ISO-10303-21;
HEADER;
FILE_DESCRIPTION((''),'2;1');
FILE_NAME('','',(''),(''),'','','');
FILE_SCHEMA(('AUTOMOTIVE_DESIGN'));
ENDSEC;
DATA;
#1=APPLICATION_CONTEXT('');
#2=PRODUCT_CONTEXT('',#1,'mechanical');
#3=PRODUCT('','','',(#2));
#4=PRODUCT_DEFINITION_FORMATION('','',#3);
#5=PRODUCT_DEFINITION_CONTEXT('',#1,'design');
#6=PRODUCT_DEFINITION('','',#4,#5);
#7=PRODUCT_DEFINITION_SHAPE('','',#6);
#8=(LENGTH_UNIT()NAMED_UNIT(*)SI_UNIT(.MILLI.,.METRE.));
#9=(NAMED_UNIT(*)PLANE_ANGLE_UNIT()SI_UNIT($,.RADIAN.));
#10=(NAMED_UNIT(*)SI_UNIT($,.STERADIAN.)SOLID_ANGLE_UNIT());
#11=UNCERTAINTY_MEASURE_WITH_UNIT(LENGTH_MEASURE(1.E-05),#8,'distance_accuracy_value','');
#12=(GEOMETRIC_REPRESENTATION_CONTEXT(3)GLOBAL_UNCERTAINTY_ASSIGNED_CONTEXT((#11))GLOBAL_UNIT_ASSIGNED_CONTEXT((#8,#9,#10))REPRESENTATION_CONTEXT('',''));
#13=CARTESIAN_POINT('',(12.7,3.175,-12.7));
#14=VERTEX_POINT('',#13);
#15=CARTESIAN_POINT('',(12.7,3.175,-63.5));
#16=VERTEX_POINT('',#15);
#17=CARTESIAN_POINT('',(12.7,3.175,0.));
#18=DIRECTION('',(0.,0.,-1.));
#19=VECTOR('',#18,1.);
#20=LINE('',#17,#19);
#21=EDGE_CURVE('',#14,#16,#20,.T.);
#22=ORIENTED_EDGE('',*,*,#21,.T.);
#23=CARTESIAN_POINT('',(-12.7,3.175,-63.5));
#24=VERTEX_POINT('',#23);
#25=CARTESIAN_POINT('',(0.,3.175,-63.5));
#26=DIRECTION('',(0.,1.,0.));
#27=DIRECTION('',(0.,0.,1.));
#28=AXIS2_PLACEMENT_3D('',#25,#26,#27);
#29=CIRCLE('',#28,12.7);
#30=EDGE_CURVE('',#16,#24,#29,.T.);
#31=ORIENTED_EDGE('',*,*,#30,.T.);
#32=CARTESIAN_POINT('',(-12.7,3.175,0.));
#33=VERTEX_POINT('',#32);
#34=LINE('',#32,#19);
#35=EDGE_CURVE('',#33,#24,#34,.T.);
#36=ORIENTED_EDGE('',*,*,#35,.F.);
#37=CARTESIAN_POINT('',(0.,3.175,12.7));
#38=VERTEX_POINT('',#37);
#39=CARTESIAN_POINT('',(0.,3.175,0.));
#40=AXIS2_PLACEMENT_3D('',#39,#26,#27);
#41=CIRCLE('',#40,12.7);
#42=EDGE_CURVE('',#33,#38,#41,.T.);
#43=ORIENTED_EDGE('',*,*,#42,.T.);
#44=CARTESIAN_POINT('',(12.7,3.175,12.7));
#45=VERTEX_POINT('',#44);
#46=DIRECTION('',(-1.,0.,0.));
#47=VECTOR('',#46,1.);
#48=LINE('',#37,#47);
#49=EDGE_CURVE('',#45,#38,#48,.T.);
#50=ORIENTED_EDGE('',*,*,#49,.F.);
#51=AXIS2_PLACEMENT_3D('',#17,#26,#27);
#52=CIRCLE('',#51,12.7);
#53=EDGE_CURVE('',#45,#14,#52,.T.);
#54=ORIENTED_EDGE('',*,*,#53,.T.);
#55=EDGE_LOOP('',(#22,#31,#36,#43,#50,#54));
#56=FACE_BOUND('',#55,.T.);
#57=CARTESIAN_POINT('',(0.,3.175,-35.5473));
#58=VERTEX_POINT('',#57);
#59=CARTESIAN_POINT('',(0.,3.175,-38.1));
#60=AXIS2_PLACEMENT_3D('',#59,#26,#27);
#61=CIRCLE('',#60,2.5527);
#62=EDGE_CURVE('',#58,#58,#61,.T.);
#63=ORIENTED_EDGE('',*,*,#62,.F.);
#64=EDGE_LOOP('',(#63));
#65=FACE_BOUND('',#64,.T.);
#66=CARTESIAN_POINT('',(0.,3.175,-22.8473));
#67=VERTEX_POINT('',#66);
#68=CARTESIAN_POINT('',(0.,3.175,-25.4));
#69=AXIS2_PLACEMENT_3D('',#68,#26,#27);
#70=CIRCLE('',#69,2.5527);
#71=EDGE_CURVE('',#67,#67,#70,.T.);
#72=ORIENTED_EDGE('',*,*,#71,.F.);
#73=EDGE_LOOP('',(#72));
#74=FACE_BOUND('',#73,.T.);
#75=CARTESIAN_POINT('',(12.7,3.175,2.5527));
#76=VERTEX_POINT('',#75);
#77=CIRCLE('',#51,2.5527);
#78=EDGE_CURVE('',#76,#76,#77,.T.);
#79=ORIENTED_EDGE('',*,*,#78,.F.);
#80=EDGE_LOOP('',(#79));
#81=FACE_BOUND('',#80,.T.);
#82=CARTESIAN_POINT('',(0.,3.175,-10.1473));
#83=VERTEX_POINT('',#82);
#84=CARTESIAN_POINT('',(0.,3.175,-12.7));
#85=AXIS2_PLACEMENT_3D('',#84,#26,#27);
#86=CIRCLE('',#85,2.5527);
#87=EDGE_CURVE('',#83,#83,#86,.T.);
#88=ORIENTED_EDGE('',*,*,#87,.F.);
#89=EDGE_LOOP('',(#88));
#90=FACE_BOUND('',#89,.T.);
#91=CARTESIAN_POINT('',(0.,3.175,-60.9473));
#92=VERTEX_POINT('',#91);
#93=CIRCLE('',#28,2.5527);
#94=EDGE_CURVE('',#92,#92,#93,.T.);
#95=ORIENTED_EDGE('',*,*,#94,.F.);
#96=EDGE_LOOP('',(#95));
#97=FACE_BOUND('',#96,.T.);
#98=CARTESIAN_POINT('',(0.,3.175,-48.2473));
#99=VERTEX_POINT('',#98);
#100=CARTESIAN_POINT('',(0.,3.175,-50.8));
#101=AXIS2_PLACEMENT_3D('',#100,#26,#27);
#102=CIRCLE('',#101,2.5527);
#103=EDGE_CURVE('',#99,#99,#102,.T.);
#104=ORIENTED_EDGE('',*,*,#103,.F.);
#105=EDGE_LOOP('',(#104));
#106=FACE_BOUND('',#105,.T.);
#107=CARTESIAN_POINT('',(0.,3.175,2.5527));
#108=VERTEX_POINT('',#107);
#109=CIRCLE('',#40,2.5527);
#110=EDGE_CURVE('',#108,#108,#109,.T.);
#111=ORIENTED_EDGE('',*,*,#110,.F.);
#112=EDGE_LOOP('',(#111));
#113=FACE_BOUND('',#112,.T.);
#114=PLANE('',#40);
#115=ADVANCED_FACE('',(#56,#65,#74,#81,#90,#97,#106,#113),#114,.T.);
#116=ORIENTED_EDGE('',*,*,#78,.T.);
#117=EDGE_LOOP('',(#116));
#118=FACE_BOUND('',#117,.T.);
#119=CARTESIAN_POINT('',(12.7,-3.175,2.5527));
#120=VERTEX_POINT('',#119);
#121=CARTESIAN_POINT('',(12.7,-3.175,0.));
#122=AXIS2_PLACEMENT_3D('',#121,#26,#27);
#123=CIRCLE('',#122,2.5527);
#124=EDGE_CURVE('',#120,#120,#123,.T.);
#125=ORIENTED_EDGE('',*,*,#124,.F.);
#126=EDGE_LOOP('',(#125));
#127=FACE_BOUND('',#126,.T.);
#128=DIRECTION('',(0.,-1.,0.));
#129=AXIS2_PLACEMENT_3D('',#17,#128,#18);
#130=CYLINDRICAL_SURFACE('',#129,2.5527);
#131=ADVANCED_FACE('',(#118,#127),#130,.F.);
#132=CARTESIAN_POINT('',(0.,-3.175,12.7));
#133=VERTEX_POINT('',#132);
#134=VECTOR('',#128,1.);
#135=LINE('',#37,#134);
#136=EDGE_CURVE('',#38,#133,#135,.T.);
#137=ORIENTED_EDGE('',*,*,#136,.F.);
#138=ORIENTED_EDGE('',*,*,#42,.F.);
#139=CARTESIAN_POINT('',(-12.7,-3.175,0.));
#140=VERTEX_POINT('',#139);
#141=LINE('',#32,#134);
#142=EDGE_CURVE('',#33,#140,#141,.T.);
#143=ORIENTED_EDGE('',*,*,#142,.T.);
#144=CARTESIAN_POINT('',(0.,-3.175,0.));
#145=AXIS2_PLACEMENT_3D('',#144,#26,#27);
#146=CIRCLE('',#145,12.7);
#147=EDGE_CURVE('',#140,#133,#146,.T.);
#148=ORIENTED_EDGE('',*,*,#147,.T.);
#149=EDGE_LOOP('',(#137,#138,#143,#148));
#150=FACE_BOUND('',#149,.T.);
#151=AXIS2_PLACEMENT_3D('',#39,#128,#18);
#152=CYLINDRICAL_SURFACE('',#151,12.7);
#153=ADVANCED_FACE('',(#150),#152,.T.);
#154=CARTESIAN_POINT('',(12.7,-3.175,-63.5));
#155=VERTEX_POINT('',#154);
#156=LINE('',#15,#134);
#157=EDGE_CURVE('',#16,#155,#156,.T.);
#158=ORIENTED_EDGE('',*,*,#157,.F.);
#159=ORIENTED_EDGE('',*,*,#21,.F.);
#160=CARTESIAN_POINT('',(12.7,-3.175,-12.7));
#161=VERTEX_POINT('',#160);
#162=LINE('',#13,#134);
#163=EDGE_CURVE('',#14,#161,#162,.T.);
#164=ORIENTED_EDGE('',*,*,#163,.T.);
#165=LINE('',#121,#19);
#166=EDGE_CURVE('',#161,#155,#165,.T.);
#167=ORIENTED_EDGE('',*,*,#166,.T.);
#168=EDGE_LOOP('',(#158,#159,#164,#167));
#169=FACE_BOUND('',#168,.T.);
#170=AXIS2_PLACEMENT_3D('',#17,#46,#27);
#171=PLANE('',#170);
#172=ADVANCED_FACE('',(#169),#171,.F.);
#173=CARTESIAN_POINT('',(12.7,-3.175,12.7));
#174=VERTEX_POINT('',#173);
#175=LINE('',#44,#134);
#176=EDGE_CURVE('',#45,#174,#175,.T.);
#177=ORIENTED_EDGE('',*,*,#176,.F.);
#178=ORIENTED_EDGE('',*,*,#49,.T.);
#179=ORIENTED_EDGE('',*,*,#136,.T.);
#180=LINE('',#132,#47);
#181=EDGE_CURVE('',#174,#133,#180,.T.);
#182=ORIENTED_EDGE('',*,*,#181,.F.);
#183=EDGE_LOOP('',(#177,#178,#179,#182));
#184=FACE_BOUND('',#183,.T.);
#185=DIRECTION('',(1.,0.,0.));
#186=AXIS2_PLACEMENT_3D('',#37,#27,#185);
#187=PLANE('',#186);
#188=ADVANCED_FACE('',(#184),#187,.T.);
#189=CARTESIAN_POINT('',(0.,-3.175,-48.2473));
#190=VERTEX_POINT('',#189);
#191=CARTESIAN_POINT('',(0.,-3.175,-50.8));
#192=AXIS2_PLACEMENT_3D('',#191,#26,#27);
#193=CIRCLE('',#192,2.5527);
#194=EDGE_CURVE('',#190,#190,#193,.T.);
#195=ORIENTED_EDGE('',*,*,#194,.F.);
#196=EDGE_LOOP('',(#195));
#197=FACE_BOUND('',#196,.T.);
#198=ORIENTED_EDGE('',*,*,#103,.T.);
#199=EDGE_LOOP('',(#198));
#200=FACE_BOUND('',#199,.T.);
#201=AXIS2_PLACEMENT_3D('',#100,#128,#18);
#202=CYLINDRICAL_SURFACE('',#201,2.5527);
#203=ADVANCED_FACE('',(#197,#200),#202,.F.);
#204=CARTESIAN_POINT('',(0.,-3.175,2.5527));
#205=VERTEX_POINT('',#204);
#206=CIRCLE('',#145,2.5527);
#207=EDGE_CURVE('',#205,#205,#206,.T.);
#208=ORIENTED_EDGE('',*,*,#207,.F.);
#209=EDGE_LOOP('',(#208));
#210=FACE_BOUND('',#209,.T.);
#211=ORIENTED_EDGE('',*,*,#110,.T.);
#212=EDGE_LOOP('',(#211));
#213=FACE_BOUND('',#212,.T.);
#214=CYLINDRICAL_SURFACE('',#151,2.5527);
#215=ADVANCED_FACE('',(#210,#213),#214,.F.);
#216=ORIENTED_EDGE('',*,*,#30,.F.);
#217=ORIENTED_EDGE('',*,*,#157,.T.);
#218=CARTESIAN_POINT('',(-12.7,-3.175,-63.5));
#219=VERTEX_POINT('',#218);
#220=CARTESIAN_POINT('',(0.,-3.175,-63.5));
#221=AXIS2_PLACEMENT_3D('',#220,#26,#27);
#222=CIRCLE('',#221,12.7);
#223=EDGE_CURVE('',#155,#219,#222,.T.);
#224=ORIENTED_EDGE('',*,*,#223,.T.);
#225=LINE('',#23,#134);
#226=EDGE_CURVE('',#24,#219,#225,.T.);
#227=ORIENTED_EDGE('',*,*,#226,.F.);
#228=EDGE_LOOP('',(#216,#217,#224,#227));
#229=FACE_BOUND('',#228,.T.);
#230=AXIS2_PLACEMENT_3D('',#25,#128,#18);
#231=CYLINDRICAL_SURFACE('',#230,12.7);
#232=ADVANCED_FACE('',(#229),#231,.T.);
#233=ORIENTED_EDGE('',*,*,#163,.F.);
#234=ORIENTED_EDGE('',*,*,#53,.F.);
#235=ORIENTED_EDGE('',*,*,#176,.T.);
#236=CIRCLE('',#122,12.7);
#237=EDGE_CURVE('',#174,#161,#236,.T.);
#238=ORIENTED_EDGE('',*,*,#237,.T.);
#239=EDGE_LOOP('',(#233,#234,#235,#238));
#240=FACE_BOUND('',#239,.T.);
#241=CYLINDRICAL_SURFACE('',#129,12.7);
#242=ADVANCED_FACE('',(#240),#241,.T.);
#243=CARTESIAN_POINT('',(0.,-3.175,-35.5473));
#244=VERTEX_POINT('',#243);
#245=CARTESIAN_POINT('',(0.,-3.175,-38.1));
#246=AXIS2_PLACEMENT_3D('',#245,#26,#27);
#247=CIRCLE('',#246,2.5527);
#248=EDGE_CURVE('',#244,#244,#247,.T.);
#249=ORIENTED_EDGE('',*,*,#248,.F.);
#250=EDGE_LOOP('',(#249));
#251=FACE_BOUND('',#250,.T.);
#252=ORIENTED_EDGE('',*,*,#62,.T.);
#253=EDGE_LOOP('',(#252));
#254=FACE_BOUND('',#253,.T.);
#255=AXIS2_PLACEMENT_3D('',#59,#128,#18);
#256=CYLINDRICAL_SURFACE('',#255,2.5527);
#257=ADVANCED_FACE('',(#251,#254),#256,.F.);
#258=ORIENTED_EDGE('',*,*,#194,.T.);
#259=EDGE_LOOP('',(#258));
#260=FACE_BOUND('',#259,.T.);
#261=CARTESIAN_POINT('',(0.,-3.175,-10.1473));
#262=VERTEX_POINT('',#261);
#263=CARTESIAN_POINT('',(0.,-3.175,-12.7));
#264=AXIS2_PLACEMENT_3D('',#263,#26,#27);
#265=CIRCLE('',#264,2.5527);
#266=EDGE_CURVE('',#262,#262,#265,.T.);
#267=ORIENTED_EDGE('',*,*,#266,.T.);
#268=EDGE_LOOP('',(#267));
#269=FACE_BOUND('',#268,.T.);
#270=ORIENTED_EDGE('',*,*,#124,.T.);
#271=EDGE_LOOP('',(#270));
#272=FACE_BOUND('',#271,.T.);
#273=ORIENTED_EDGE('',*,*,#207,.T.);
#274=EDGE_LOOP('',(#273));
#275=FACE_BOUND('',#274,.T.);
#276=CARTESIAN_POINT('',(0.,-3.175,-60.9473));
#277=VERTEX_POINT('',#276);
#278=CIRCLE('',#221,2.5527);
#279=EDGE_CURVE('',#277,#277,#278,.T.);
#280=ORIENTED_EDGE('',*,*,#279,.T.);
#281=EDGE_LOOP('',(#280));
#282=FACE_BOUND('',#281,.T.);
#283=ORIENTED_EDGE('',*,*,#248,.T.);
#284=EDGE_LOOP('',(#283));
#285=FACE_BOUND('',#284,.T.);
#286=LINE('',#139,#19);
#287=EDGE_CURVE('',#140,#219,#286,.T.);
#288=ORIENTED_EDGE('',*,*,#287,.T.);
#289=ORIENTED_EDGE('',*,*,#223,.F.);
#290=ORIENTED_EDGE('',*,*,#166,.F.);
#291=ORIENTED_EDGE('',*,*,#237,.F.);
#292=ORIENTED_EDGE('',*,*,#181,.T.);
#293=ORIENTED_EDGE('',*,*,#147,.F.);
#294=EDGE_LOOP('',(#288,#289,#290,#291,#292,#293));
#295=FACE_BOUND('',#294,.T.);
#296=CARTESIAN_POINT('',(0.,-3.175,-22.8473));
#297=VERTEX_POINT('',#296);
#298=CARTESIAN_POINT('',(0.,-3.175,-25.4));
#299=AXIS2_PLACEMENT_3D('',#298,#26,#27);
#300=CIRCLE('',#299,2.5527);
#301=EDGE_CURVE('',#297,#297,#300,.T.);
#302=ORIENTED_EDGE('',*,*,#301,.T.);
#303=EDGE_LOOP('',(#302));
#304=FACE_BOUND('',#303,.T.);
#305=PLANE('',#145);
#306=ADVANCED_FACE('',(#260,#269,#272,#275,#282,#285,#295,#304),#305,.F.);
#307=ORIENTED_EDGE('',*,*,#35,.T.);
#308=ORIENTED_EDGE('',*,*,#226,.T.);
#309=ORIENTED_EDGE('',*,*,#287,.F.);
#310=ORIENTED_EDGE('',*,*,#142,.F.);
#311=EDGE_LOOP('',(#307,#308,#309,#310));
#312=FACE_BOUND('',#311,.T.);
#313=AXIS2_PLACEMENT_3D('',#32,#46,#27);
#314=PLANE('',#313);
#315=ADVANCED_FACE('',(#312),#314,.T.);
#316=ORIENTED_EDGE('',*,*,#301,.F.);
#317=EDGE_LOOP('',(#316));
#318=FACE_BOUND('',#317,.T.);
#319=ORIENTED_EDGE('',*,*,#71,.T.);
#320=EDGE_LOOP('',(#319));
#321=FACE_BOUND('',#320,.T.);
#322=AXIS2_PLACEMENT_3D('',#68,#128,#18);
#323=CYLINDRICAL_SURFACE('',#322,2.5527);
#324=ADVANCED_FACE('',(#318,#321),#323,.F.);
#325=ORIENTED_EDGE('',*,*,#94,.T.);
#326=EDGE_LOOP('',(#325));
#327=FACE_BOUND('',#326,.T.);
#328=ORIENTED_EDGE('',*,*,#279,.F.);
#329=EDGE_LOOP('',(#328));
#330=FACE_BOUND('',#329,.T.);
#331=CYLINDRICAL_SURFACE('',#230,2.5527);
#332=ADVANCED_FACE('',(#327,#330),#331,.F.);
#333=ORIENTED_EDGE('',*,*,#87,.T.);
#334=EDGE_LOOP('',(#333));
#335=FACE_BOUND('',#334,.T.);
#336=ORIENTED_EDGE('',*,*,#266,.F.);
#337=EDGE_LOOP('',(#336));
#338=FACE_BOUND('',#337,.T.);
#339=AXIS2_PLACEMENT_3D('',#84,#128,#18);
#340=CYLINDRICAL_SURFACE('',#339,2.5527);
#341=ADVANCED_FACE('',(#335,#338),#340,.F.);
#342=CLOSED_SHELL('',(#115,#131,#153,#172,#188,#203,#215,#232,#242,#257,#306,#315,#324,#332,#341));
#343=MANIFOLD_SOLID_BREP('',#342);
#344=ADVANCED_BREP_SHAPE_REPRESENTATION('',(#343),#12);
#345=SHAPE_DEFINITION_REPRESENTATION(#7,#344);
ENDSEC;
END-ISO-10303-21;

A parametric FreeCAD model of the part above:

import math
import FreeCAD as App
import Part
import Sketcher
Q = App.Units.Quantity

doc = App.newDocument("Part")
params = doc.addObject("Spreadsheet::Sheet", "Params")
for row, (alias, value) in enumerate([
    ("sketch1_radius", "0.5 in"),
    ("sketch1_height", "2 in"),
    ("sketch1_diameter", "0.201 in"),
    ("pad1_length", "0.25 in"),
], start=1):
    params.set(f"A{row}", alias)
    params.set(f"B{row}", "=" + value)
    params.setAlias(f"B{row}", alias)

body = doc.addObject("PartDesign::Body", "Body")

sketch1 = doc.addObject("Sketcher::SketchObject", "Sketch")
body.addObject(sketch1)
sketch1.AttachmentSupport = (doc.XZ_Plane, [""])
sketch1.MapMode = "FlatFace"
sketch1.addGeometry([
    Part.LineSegment(App.Vector(0, 12.7, 0), App.Vector(12.7, 12.7, 0)),
    Part.ArcOfCircle(Part.Circle(App.Vector(12.7, 0, 0), App.Vector(0, 0, 1), 12.7), math.radians(-90), math.radians(90)),
    Part.LineSegment(App.Vector(12.7, -12.7, 0), App.Vector(12.7, -63.5, 0)),
    Part.ArcOfCircle(Part.Circle(App.Vector(0, -63.5, 0), App.Vector(0, 0, 1), 12.7), math.radians(180), math.radians(360)),
    Part.LineSegment(App.Vector(-12.7, -63.5, 0), App.Vector(-12.7, 0, 0)),
    Part.ArcOfCircle(Part.Circle(App.Vector(0, 0, 0), App.Vector(0, 0, 1), 12.7), math.radians(90), math.radians(180)),
    Part.ArcOfCircle(Part.Circle(App.Vector(12.7, 0, 0), App.Vector(0, 0, 1), 2.6), math.radians(-90), math.radians(0)),
    Part.ArcOfCircle(Part.Circle(App.Vector(12.7, 0, 0), App.Vector(0, 0, 1), 2.6), math.radians(0), math.radians(96)),
    Part.ArcOfCircle(Part.Circle(App.Vector(12.7, 0, 0), App.Vector(0, 0, 1), 2.6), math.radians(96), math.radians(270)),
    Part.Circle(App.Vector(0, 0, 0), App.Vector(0, 0, 1), 2.6),
    Part.ArcOfCircle(Part.Circle(App.Vector(0, -12.7, 0), App.Vector(0, 0, 1), 2.6), math.radians(0), math.radians(174)),
    Part.ArcOfCircle(Part.Circle(App.Vector(0, -12.7, 0), App.Vector(0, 0, 1), 2.6), math.radians(174), math.radians(360)),
    Part.Circle(App.Vector(0, -50.8, 0), App.Vector(0, 0, 1), 2.6),
    Part.Circle(App.Vector(0, -63.5, 0), App.Vector(0, 0, 1), 2.6),
    Part.Circle(App.Vector(0, -25.4, 0), App.Vector(0, 0, 1), 2.6),
    Part.Circle(App.Vector(0, -38.1, 0), App.Vector(0, 0, 1), 2.6),
], False)
sketch1.addConstraint([
    Sketcher.Constraint("Tangent", 0, 2, 1, 2),
    Sketcher.Constraint("Coincident", 1, 1, 2, 1),
    Sketcher.Constraint("Tangent", 2, 2, 3, 2),
    Sketcher.Constraint("Tangent", 3, 1, 4, 1),
    Sketcher.Constraint("Tangent", 4, 2, 5, 2),
    Sketcher.Constraint("Tangent", 5, 1, 0, 1),
    Sketcher.Constraint("Tangent", 6, 2, 7, 1),
    Sketcher.Constraint("Tangent", 7, 2, 8, 1),
    Sketcher.Constraint("Tangent", 8, 2, 6, 1),
    Sketcher.Constraint("Tangent", 10, 1, 11, 2),
    Sketcher.Constraint("Coincident", 11, 1, 10, 2),
    Sketcher.Constraint("Horizontal", 0),
    Sketcher.Constraint("Vertical", 2),
    Sketcher.Constraint("Vertical", 4),
    Sketcher.Constraint("Coincident", 5, 3, -1, 1),
    Sketcher.Constraint("Coincident", 9, 3, -1, 1),
    Sketcher.Constraint("Coincident", 6, 3, 1, 3),
    Sketcher.Constraint("Coincident", 13, 3, 3, 3),
    Sketcher.Constraint("Equal", 1, 3),
    Sketcher.Constraint("Equal", 3, 5),
    Sketcher.Constraint("Equal", 8, 9),
    Sketcher.Constraint("Equal", 9, 10),
    Sketcher.Constraint("Equal", 11, 12),
    Sketcher.Constraint("Equal", 12, 13),
    Sketcher.Constraint("Equal", 13, 14),
    Sketcher.Constraint("Equal", 14, 15),
    Sketcher.Constraint("PointOnObject", 10, 3, -2),
    Sketcher.Constraint("PointOnObject", 12, 3, -2),
    Sketcher.Constraint("PointOnObject", 14, 3, -2),
    Sketcher.Constraint("PointOnObject", 15, 3, -2),
    Sketcher.Constraint("PointOnObject", 6, 2, -1),
    Sketcher.Constraint("Horizontal", 11, 3, 1, 1),
    Sketcher.Constraint("Horizontal", 1, 1, 10, 1),
    Sketcher.Constraint("Vertical", 0, 2, 1, 1),
    Sketcher.Constraint("Vertical", 2, 2, 8, 2),
    Sketcher.Constraint("Radius", 1, Q("0.5 in")),
    Sketcher.Constraint("DistanceY", 2, 2, 2, 1, Q("2 in")),
    Sketcher.Constraint("Diameter", 9, Q("0.201 in")),
    Sketcher.Constraint("DistanceY", 12, 3, -1, 1, Q("2 in")),
    Sketcher.Constraint("DistanceY", 14, 3, -1, 1, Q("1 in")),
    Sketcher.Constraint("DistanceY", 3, 3, 15, 3, Q("1 in")),
    Sketcher.Constraint("DistanceX", -1, 1, 7, 2, Q("12.443454 mm")),
    Sketcher.Constraint("DistanceX", 11, 1, -1, 1, Q("2.539776 mm")),
])
sketch1.setExpression("Constraints[35]", "Params.sketch1_radius")
sketch1.setExpression("Constraints[36]", "Params.sketch1_height")
sketch1.setExpression("Constraints[37]", "Params.sketch1_diameter")
pad1 = doc.addObject("PartDesign::Pad", "Pad")
body.addObject(pad1)
pad1.Profile = sketch1
pad1.setExpression("Length", "Params.pad1_length")
pad1.Midplane = True

doc.recompute()
